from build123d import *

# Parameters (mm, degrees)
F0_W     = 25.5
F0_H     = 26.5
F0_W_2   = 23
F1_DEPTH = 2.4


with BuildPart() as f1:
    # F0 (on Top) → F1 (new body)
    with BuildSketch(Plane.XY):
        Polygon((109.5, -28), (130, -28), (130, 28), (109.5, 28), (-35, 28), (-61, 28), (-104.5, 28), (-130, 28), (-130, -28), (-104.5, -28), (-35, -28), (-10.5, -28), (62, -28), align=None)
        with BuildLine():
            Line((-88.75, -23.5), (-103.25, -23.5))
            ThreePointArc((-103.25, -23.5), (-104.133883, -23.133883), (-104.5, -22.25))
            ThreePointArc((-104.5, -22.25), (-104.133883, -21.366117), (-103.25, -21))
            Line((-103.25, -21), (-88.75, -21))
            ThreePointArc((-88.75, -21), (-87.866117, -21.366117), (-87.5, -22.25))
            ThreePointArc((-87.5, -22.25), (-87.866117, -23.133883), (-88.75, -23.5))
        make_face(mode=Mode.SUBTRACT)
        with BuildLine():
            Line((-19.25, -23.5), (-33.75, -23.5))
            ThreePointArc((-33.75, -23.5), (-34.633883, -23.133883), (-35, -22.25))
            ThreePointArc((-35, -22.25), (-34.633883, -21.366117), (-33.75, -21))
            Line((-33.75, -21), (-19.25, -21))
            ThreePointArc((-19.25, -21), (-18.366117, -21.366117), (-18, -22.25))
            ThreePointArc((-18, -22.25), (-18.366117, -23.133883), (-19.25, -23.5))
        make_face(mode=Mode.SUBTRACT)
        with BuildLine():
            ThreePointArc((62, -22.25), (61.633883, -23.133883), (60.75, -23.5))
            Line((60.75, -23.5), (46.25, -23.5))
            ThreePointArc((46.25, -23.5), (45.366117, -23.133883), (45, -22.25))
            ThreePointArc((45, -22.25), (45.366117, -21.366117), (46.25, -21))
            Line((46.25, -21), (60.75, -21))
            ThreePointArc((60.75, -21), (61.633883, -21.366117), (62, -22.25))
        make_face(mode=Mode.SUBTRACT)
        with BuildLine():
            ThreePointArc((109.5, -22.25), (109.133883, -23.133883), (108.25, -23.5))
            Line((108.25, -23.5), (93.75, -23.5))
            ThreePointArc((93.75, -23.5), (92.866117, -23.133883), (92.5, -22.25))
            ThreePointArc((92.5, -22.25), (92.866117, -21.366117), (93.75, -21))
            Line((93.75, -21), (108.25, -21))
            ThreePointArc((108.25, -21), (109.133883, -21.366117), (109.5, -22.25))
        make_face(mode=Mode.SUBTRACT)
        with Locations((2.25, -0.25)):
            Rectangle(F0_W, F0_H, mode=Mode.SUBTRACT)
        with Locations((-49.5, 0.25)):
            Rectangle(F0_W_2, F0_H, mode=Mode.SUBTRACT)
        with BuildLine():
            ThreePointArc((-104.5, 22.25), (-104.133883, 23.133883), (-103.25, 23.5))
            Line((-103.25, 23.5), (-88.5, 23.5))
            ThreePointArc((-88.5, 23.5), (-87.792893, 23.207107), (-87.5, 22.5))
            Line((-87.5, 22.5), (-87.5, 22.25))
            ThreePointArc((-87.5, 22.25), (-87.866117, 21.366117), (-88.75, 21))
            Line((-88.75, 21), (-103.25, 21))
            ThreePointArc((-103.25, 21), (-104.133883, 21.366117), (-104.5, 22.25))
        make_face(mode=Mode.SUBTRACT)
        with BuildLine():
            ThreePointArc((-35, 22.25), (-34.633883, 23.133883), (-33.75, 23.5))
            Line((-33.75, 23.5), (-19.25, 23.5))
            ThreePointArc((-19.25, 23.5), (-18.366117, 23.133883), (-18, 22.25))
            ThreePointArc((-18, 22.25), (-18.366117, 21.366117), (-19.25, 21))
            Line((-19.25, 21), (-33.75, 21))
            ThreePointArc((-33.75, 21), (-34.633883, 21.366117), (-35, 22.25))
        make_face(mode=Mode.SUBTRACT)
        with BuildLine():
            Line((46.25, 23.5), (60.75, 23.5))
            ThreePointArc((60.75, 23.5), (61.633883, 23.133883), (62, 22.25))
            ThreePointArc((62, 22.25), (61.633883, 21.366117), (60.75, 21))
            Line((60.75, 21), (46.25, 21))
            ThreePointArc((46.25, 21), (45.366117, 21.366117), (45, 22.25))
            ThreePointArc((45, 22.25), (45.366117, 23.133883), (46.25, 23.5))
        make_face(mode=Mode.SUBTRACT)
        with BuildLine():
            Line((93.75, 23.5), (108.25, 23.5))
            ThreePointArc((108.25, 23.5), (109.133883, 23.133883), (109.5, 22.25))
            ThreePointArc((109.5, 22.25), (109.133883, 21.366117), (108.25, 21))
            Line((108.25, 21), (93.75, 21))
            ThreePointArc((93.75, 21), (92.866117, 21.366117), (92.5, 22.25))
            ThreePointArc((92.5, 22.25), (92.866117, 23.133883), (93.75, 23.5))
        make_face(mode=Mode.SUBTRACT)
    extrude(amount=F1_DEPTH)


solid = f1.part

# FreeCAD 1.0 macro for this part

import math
import FreeCAD as App
import Part
import Sketcher


def add_polygon(sketch, points):
    """Adds a closed chain of lines whose ends are joined by coincident constraints."""
    first, n = sketch.GeometryCount, len(points)
    for a, b in zip(points, points[1:] + points[:1]):
        sketch.addGeometry(Part.LineSegment(App.Vector(*a, 0), App.Vector(*b, 0)), False)
    for i in range(n):
        sketch.addConstraint(Sketcher.Constraint("Coincident", first + i, 2, first + (i + 1) % n, 1))

doc = App.newDocument("Part")
body = doc.addObject("PartDesign::Body", "Body")

# Sketch on XY plane
sketch1 = body.newObject("Sketcher::SketchObject", "Sketch")
sketch1.AttachmentSupport = (doc.getObject("XY_Plane"), [""])
sketch1.MapMode = "FlatFace"
add_polygon(sketch1, [(130, -28), (130, 28), (-130, 28), (-130, -28)])  # lines 0-3
sketch1.addGeometry(Part.ArcOfCircle(Part.Circle(App.Vector(-88.750002, -22.249998, 0), App.Vector(0, 0, 1), 1.250002), math.radians(-89.999925), math.radians(-0.000075)), False)  # 4
sketch1.addGeometry(Part.LineSegment(App.Vector(-88.75, -23.5, 0), App.Vector(-103.25, -23.5, 0)), False)  # 5
sketch1.addGeometry(Part.ArcOfCircle(Part.Circle(App.Vector(-103.249998, -22.249998, 0), App.Vector(0, 0, 1), 1.250002), math.radians(-179.999925), math.radians(-90.000075)), False)  # 6
sketch1.addGeometry(Part.ArcOfCircle(Part.Circle(App.Vector(-103.249998, -22.250002, 0), App.Vector(0, 0, 1), 1.250002), math.radians(90.000075), math.radians(179.999925)), False)  # 7
sketch1.addGeometry(Part.LineSegment(App.Vector(-103.25, -21, 0), App.Vector(-88.75, -21, 0)), False)  # 8
sketch1.addGeometry(Part.ArcOfCircle(Part.Circle(App.Vector(-88.750002, -22.250002, 0), App.Vector(0, 0, 1), 1.250002), math.radians(0.000075), math.radians(89.999925)), False)  # 9
sketch1.addGeometry(Part.ArcOfCircle(Part.Circle(App.Vector(-19.250002, -22.249998, 0), App.Vector(0, 0, 1), 1.250002), math.radians(-89.999925), math.radians(-0.000075)), False)  # 10
sketch1.addGeometry(Part.LineSegment(App.Vector(-19.25, -23.5, 0), App.Vector(-33.75, -23.5, 0)), False)  # 11
sketch1.addGeometry(Part.ArcOfCircle(Part.Circle(App.Vector(-33.749998, -22.249998, 0), App.Vector(0, 0, 1), 1.250002), math.radians(-179.999925), math.radians(-90.000075)), False)  # 12
sketch1.addGeometry(Part.ArcOfCircle(Part.Circle(App.Vector(-33.749998, -22.250002, 0), App.Vector(0, 0, 1), 1.250002), math.radians(90.000075), math.radians(179.999925)), False)  # 13
sketch1.addGeometry(Part.LineSegment(App.Vector(-33.75, -21, 0), App.Vector(-19.25, -21, 0)), False)  # 14
sketch1.addGeometry(Part.ArcOfCircle(Part.Circle(App.Vector(-19.250002, -22.250002, 0), App.Vector(0, 0, 1), 1.250002), math.radians(0.000075), math.radians(89.999925)), False)  # 15
add_polygon(sketch1, [(15, -13.5), (-10.5, -13.5), (-10.5, 13), (15, 13)])  # lines 16-19
sketch1.addGeometry(Part.ArcOfCircle(Part.Circle(App.Vector(60.749998, -22.250002, 0), App.Vector(0, 0, 1), 1.250002), math.radians(0.000075), math.radians(89.999925)), False)  # 20
sketch1.addGeometry(Part.ArcOfCircle(Part.Circle(App.Vector(60.749998, -22.249998, 0), App.Vector(0, 0, 1), 1.250002), math.radians(-89.999925), math.radians(-0.000075)), False)  # 21
sketch1.addGeometry(Part.LineSegment(App.Vector(60.75, -23.5, 0), App.Vector(46.25, -23.5, 0)), False)  # 22
sketch1.addGeometry(Part.ArcOfCircle(Part.Circle(App.Vector(46.250002, -22.249998, 0), App.Vector(0, 0, 1), 1.250002), math.radians(-179.999925), math.radians(-90.000075)), False)  # 23
sketch1.addGeometry(Part.ArcOfCircle(Part.Circle(App.Vector(46.250002, -22.250002, 0), App.Vector(0, 0, 1), 1.250002), math.radians(90.000075), math.radians(179.999925)), False)  # 24
sketch1.addGeometry(Part.LineSegment(App.Vector(46.25, -21, 0), App.Vector(60.75, -21, 0)), False)  # 25
sketch1.addGeometry(Part.ArcOfCircle(Part.Circle(App.Vector(108.249998, -22.250002, 0), App.Vector(0, 0, 1), 1.250002), math.radians(0.000075), math.radians(89.999925)), False)  # 26
sketch1.addGeometry(Part.ArcOfCircle(Part.Circle(App.Vector(108.249998, -22.249998, 0), App.Vector(0, 0, 1), 1.250002), math.radians(-89.999925), math.radians(-0.000075)), False)  # 27
sketch1.addGeometry(Part.LineSegment(App.Vector(108.25, -23.5, 0), App.Vector(93.75, -23.5, 0)), False)  # 28
sketch1.addGeometry(Part.ArcOfCircle(Part.Circle(App.Vector(93.750002, -22.249998, 0), App.Vector(0, 0, 1), 1.250002), math.radians(-179.999925), math.radians(-90.000075)), False)  # 29
sketch1.addGeometry(Part.ArcOfCircle(Part.Circle(App.Vector(93.750002, -22.250002, 0), App.Vector(0, 0, 1), 1.250002), math.radians(90.000075), math.radians(179.999925)), False)  # 30
sketch1.addGeometry(Part.LineSegment(App.Vector(93.75, -21, 0), App.Vector(108.25, -21, 0)), False)  # 31
add_polygon(sketch1, [(-38, -13), (-61, -13), (-61, 13.5), (-38, 13.5)])  # lines 32-35
sketch1.addGeometry(Part.ArcOfCircle(Part.Circle(App.Vector(-103.249998, 22.250002, 0), App.Vector(0, 0, 1), 1.250002), math.radians(-179.999925), math.radians(-90.000075)), False)  # 36
sketch1.addGeometry(Part.ArcOfCircle(Part.Circle(App.Vector(-103.249998, 22.249998, 0), App.Vector(0, 0, 1), 1.250002), math.radians(90.000075), math.radians(179.999925)), False)  # 37
sketch1.addGeometry(Part.LineSegment(App.Vector(-103.25, 23.5, 0), App.Vector(-88.5, 23.5, 0)), False)  # 38
sketch1.addGeometry(Part.ArcOfCircle(Part.Circle(App.Vector(-88.499999, 22.500001, 0), App.Vector(0, 0, 1), 0.999999), math.radians(-0.000043), math.radians(90.000043)), False)  # 39
sketch1.addGeometry(Part.LineSegment(App.Vector(-87.5, 22.5, 0), App.Vector(-87.5, 22.25, 0)), False)  # 40
sketch1.addGeometry(Part.ArcOfCircle(Part.Circle(App.Vector(-88.750002, 22.250002, 0), App.Vector(0, 0, 1), 1.250002), math.radians(-89.999925), math.radians(-0.000075)), False)  # 41
sketch1.addGeometry(Part.LineSegment(App.Vector(-88.75, 21, 0), App.Vector(-103.25, 21, 0)), False)  # 42
sketch1.addGeometry(Part.ArcOfCircle(Part.Circle(App.Vector(-33.749998, 22.250002, 0), App.Vector(0, 0, 1), 1.250002), math.radians(-179.999925), math.radians(-90.000075)), False)  # 43
sketch1.addGeometry(Part.ArcOfCircle(Part.Circle(App.Vector(-33.749998, 22.249998, 0), App.Vector(0, 0, 1), 1.250002), math.radians(90.000075), math.radians(179.999925)), False)  # 44
sketch1.addGeometry(Part.LineSegment(App.Vector(-33.75, 23.5, 0), App.Vector(-19.25, 23.5, 0)), False)  # 45
sketch1.addGeometry(Part.ArcOfCircle(Part.Circle(App.Vector(-19.250002, 22.249998, 0), App.Vector(0, 0, 1), 1.250002), math.radians(0.000075), math.radians(89.999925)), False)  # 46
sketch1.addGeometry(Part.ArcOfCircle(Part.Circle(App.Vector(-19.250002, 22.250002, 0), App.Vector(0, 0, 1), 1.250002), math.radians(-89.999925), math.radians(-0.000075)), False)  # 47
sketch1.addGeometry(Part.LineSegment(App.Vector(-19.25, 21, 0), App.Vector(-33.75, 21, 0)), False)  # 48
sketch1.addGeometry(Part.ArcOfCircle(Part.Circle(App.Vector(46.250002, 22.249998, 0), App.Vector(0, 0, 1), 1.250002), math.radians(90.000075), math.radians(179.999925)), False)  # 49
sketch1.addGeometry(Part.LineSegment(App.Vector(46.25, 23.5, 0), App.Vector(60.75, 23.5, 0)), False)  # 50
sketch1.addGeometry(Part.ArcOfCircle(Part.Circle(App.Vector(60.749998, 22.249998, 0), App.Vector(0, 0, 1), 1.250002), math.radians(0.000075), math.radians(89.999925)), False)  # 51
sketch1.addGeometry(Part.ArcOfCircle(Part.Circle(App.Vector(60.749998, 22.250002, 0), App.Vector(0, 0, 1), 1.250002), math.radians(-89.999925), math.radians(-0.000075)), False)  # 52
sketch1.addGeometry(Part.LineSegment(App.Vector(60.75, 21, 0), App.Vector(46.25, 21, 0)), False)  # 53
sketch1.addGeometry(Part.ArcOfCircle(Part.Circle(App.Vector(46.250002, 22.250002, 0), App.Vector(0, 0, 1), 1.250002), math.radians(-179.999925), math.radians(-90.000075)), False)  # 54
sketch1.addGeometry(Part.ArcOfCircle(Part.Circle(App.Vector(93.750002, 22.249998, 0), App.Vector(0, 0, 1), 1.250002), math.radians(90.000075), math.radians(179.999925)), False)  # 55
sketch1.addGeometry(Part.LineSegment(App.Vector(93.75, 23.5, 0), App.Vector(108.25, 23.5, 0)), False)  # 56
sketch1.addGeometry(Part.ArcOfCircle(Part.Circle(App.Vector(108.249998, 22.249998, 0), App.Vector(0, 0, 1), 1.250002), math.radians(0.000075), math.radians(89.999925)), False)  # 57
sketch1.addGeometry(Part.ArcOfCircle(Part.Circle(App.Vector(108.249998, 22.250002, 0), App.Vector(0, 0, 1), 1.250002), math.radians(-89.999925), math.radians(-0.000075)), False)  # 58
sketch1.addGeometry(Part.LineSegment(App.Vector(108.25, 21, 0), App.Vector(93.75, 21, 0)), False)  # 59
sketch1.addGeometry(Part.ArcOfCircle(Part.Circle(App.Vector(93.750002, 22.250002, 0), App.Vector(0, 0, 1), 1.250002), math.radians(-179.999925), math.radians(-90.000075)), False)  # 60
sketch1.addConstraint(Sketcher.Constraint("Tangent", 4, 1, 5, 1))
sketch1.addConstraint(Sketcher.Constraint("Tangent", 5, 2, 6, 2))
sketch1.addConstraint(Sketcher.Constraint("Coincident", 6, 1, 7, 2))
sketch1.addConstraint(Sketcher.Constraint("Tangent", 7, 1, 8, 1))
sketch1.addConstraint(Sketcher.Constraint("Tangent", 8, 2, 9, 2))
sketch1.addConstraint(Sketcher.Constraint("Coincident", 9, 1, 4, 2))
sketch1.addConstraint(Sketcher.Constraint("Tangent", 10, 1, 11, 1))
sketch1.addConstraint(Sketcher.Constraint("Tangent", 11, 2, 12, 2))
sketch1.addConstraint(Sketcher.Constraint("Coincident", 12, 1, 13, 2))
sketch1.addConstraint(Sketcher.Constraint("Tangent", 13, 1, 14, 1))
sketch1.addConstraint(Sketcher.Constraint("Tangent", 14, 2, 15, 2))
sketch1.addConstraint(Sketcher.Constraint("Coincident", 15, 1, 10, 2))
sketch1.addConstraint(Sketcher.Constraint("Coincident", 20, 1, 21, 2))
sketch1.addConstraint(Sketcher.Constraint("Tangent", 21, 1, 22, 1))
sketch1.addConstraint(Sketcher.Constraint("Tangent", 22, 2, 23, 2))
sketch1.addConstraint(Sketcher.Constraint("Coincident", 23, 1, 24, 2))
sketch1.addConstraint(Sketcher.Constraint("Tangent", 24, 1, 25, 1))
sketch1.addConstraint(Sketcher.Constraint("Tangent", 25, 2, 20, 2))
sketch1.addConstraint(Sketcher.Constraint("Coincident", 26, 1, 27, 2))
sketch1.addConstraint(Sketcher.Constraint("Tangent", 27, 1, 28, 1))
sketch1.addConstraint(Sketcher.Constraint("Tangent", 28, 2, 29, 2))
sketch1.addConstraint(Sketcher.Constraint("Coincident", 29, 1, 30, 2))
sketch1.addConstraint(Sketcher.Constraint("Tangent", 30, 1, 31, 1))
sketch1.addConstraint(Sketcher.Constraint("Tangent", 31, 2, 26, 2))
sketch1.addConstraint(Sketcher.Constraint("Coincident", 36, 1, 37, 2))
sketch1.addConstraint(Sketcher.Constraint("Tangent", 37, 1, 38, 1))
sketch1.addConstraint(Sketcher.Constraint("Tangent", 38, 2, 39, 2))
sketch1.addConstraint(Sketcher.Constraint("Tangent", 39, 1, 40, 1))
sketch1.addConstraint(Sketcher.Constraint("Tangent", 40, 2, 41, 2))
sketch1.addConstraint(Sketcher.Constraint("Tangent", 41, 1, 42, 1))
sketch1.addConstraint(Sketcher.Constraint("Tangent", 42, 2, 36, 2))
sketch1.addConstraint(Sketcher.Constraint("Coincident", 43, 1, 44, 2))
sketch1.addConstraint(Sketcher.Constraint("Tangent", 44, 1, 45, 1))
sketch1.addConstraint(Sketcher.Constraint("Tangent", 45, 2, 46, 2))
sketch1.addConstraint(Sketcher.Constraint("Coincident", 46, 1, 47, 2))
sketch1.addConstraint(Sketcher.Constraint("Tangent", 47, 1, 48, 1))
sketch1.addConstraint(Sketcher.Constraint("Tangent", 48, 2, 43, 2))
sketch1.addConstraint(Sketcher.Constraint("Tangent", 49, 1, 50, 1))
sketch1.addConstraint(Sketcher.Constraint("Tangent", 50, 2, 51, 2))
sketch1.addConstraint(Sketcher.Constraint("Coincident", 51, 1, 52, 2))
sketch1.addConstraint(Sketcher.Constraint("Tangent", 52, 1, 53, 1))
sketch1.addConstraint(Sketcher.Constraint("Tangent", 53, 2, 54, 2))
sketch1.addConstraint(Sketcher.Constraint("Coincident", 54, 1, 49, 2))
sketch1.addConstraint(Sketcher.Constraint("Tangent", 55, 1, 56, 1))
sketch1.addConstraint(Sketcher.Constraint("Tangent", 56, 2, 57, 2))
sketch1.addConstraint(Sketcher.Constraint("Coincident", 57, 1, 58, 2))
sketch1.addConstraint(Sketcher.Constraint("Tangent", 58, 1, 59, 1))
sketch1.addConstraint(Sketcher.Constraint("Tangent", 59, 2, 60, 2))
sketch1.addConstraint(Sketcher.Constraint("Coincident", 60, 1, 55, 2))
sketch1.addConstraint(Sketcher.Constraint("Vertical", 0))
sketch1.addConstraint(Sketcher.Constraint("Horizontal", 1))
sketch1.addConstraint(Sketcher.Constraint("Vertical", 2))
sketch1.addConstraint(Sketcher.Constraint("Horizontal", 3))
sketch1.addConstraint(Sketcher.Constraint("Horizontal", 5))
sketch1.addConstraint(Sketcher.Constraint("Horizontal", 8))
sketch1.addConstraint(Sketcher.Constraint("Horizontal", 11))
sketch1.addConstraint(Sketcher.Constraint("Horizontal", 14))
sketch1.addConstraint(Sketcher.Constraint("Horizontal", 16))
sketch1.addConstraint(Sketcher.Constraint("Vertical", 17))
sketch1.addConstraint(Sketcher.Constraint("Horizontal", 18))
sketch1.addConstraint(Sketcher.Constraint("Vertical", 19))
sketch1.addConstraint(Sketcher.Constraint("Horizontal", 22))
sketch1.addConstraint(Sketcher.Constraint("Horizontal", 25))
sketch1.addConstraint(Sketcher.Constraint("Horizontal", 28))
sketch1.addConstraint(Sketcher.Constraint("Horizontal", 31))
sketch1.addConstraint(Sketcher.Constraint("Horizontal", 32))
sketch1.addConstraint(Sketcher.Constraint("Vertical", 33))
sketch1.addConstraint(Sketcher.Constraint("Horizontal", 34))
sketch1.addConstraint(Sketcher.Constraint("Vertical", 35))
sketch1.addConstraint(Sketcher.Constraint("Horizontal", 38))
sketch1.addConstraint(Sketcher.Constraint("Vertical", 40))
sketch1.addConstraint(Sketcher.Constraint("Horizontal", 42))
sketch1.addConstraint(Sketcher.Constraint("Horizontal", 45))
sketch1.addConstraint(Sketcher.Constraint("Horizontal", 48))
sketch1.addConstraint(Sketcher.Constraint("Horizontal", 50))
sketch1.addConstraint(Sketcher.Constraint("Horizontal", 53))
sketch1.addConstraint(Sketcher.Constraint("Horizontal", 56))
sketch1.addConstraint(Sketcher.Constraint("Horizontal", 59))
sketch1.addConstraint(Sketcher.Constraint("Coincident", 7, 3, 6, 3))
sketch1.addConstraint(Sketcher.Constraint("Coincident", 9, 3, 4, 3))
sketch1.addConstraint(Sketcher.Constraint("Coincident", 13, 3, 12, 3))
sketch1.addConstraint(Sketcher.Constraint("Coincident", 15, 3, 10, 3))
sketch1.addConstraint(Sketcher.Constraint("Coincident", 21, 3, 20, 3))
sketch1.addConstraint(Sketcher.Constraint("Coincident", 24, 3, 23, 3))
sketch1.addConstraint(Sketcher.Constraint("Coincident", 27, 3, 26, 3))
sketch1.addConstraint(Sketcher.Constraint("Coincident", 30, 3, 29, 3))
sketch1.addConstraint(Sketcher.Constraint("Coincident", 37, 3, 36, 3))
sketch1.addConstraint(Sketcher.Constraint("Coincident", 44, 3, 43, 3))
sketch1.addConstraint(Sketcher.Constraint("Coincident", 47, 3, 46, 3))
sketch1.addConstraint(Sketcher.Constraint("Coincident", 52, 3, 51, 3))
sketch1.addConstraint(Sketcher.Constraint("Coincident", 54, 3, 49, 3))
sketch1.addConstraint(Sketcher.Constraint("Coincident", 58, 3, 57, 3))
sketch1.addConstraint(Sketcher.Constraint("Coincident", 60, 3, 55, 3))
sketch1.addConstraint(Sketcher.Constraint("Equal", 9, 10))
sketch1.addConstraint(Sketcher.Constraint("Equal", 15, 20))
sketch1.addConstraint(Sketcher.Constraint("Equal", 24, 26))
sketch1.addConstraint(Sketcher.Constraint("Equal", 30, 36))
sketch1.addConstraint(Sketcher.Constraint("Equal", 37, 41))
sketch1.addConstraint(Sketcher.Constraint("Equal", 41, 43))
sketch1.addConstraint(Sketcher.Constraint("Equal", 47, 49))
sketch1.addConstraint(Sketcher.Constraint("Equal", 54, 55))
sketch1.addConstraint(Sketcher.Constraint("Symmetric", 0, 2, 2, 2, -1, 1))
sketch1.addConstraint(Sketcher.Constraint("Symmetric", 6, 3, 36, 3, -1))
sketch1.addConstraint(Sketcher.Constraint("Symmetric", 12, 3, 43, 3, -1))
sketch1.addConstraint(Sketcher.Constraint("Symmetric", 23, 3, 49, 3, -1))
sketch1.addConstraint(Sketcher.Constraint("Symmetric", 29, 3, 55, 3, -1))
sketch1.addConstraint(Sketcher.Constraint("Symmetric", 9, 1, 40, 2, -1))
sketch1.addConstraint(Sketcher.Constraint("Symmetric", 15, 1, 46, 1, -1))
sketch1.addConstraint(Sketcher.Constraint("Symmetric", 20, 1, 51, 1, -1))
sketch1.addConstraint(Sketcher.Constraint("Symmetric", 26, 1, 57, 1, -1))
sketch1.addConstraint(Sketcher.Constraint("Horizontal", 6, 3, 10, 3))
sketch1.addConstraint(Sketcher.Constraint("Horizontal", 15, 3, 20, 3))
sketch1.addConstraint(Sketcher.Constraint("Horizontal", 24, 3, 26, 3))
sketch1.addConstraint(Sketcher.Constraint("Horizontal", 30, 3, 6, 1))
sketch1.addConstraint(Sketcher.Constraint("Horizontal", 9, 1, 12, 1))
sketch1.addConstraint(Sketcher.Constraint("Horizontal", 12, 1, 15, 1))
sketch1.addConstraint(Sketcher.Constraint("Horizontal", 15, 1, 20, 1))
sketch1.addConstraint(Sketcher.Constraint("Horizontal", 20, 1, 23, 1))
sketch1.addConstraint(Sketcher.Constraint("Horizontal", 23, 1, 26, 1))
sketch1.addConstraint(Sketcher.Constraint("Horizontal", 26, 1, 29, 1))
sketch1.addConstraint(Sketcher.Constraint("Horizontal", 60, 3, 36, 1))
sketch1.addConstraint(Sketcher.Constraint("Horizontal", 40, 2, 43, 1))
sketch1.addConstraint(Sketcher.Constraint("Horizontal", 51, 1, 54, 1))
sketch1.addConstraint(Sketcher.Constraint("Horizontal", 57, 1, 60, 1))
sketch1.addConstraint(Sketcher.Constraint("Equal", 8, 11))
sketch1.addConstraint(Sketcher.Constraint("Equal", 14, 22))
sketch1.addConstraint(Sketcher.Constraint("Equal", 25, 28))
sketch1.addConstraint(Sketcher.Constraint("Equal", 19, 33))
sketch1.addConstraint(Sketcher.Constraint("Radius", 39, 0.999999))
sketch1.addConstraint(Sketcher.Constraint("DistanceX", 1, 2, 1, 1, 260.0))
sketch1.addConstraint(Sketcher.Constraint("DistanceX", 32, 2, 32, 1, 23.0))
sketch1.addConstraint(Sketcher.Constraint("DistanceY", 0, 1, 0, 2, 56.0))
sketch1.addConstraint(Sketcher.Constraint("Radius", 4, 1.250002))
sketch1.addConstraint(Sketcher.Constraint("DistanceX", 5, 2, 5, 1, 14.5))
sketch1.addConstraint(Sketcher.Constraint("DistanceX", 16, 2, 16, 1, 25.5))
sketch1.addConstraint(Sketcher.Constraint("DistanceY", 17, 1, 17, 2, 26.5))
sketch1.addConstraint(Sketcher.Constraint("DistanceY", 7, 1, -1, 1, 21.0))
sketch1.addConstraint(Sketcher.Constraint("DistanceX", 12, 1, -1, 1, 35.0))
sketch1.addConstraint(Sketcher.Constraint("DistanceY", -1, 1, 17, 2, 13.0))
sketch1.addConstraint(Sketcher.Constraint("DistanceX", -1, 1, 18, 2, 15.0))
sketch1.addConstraint(Sketcher.Constraint("DistanceX", -1, 1, 20, 1, 62.0))
sketch1.addConstraint(Sketcher.Constraint("DistanceX", 32, 2, -1, 1, 61.0))
sketch1.addConstraint(Sketcher.Constraint("DistanceY", 32, 2, -1, 1, 13.0))
sketch1.addConstraint(Sketcher.Constraint("DistanceX", 39, 3, -1, 1, 88.499999))
sketch1.addConstraint(Sketcher.Constraint("DistanceX", -1, 1, 26, 1, 109.5))
pad1 = body.newObject("PartDesign::Pad", "Pad")
pad1.Profile = sketch1
pad1.Length = 2.4

doc.recompute()
